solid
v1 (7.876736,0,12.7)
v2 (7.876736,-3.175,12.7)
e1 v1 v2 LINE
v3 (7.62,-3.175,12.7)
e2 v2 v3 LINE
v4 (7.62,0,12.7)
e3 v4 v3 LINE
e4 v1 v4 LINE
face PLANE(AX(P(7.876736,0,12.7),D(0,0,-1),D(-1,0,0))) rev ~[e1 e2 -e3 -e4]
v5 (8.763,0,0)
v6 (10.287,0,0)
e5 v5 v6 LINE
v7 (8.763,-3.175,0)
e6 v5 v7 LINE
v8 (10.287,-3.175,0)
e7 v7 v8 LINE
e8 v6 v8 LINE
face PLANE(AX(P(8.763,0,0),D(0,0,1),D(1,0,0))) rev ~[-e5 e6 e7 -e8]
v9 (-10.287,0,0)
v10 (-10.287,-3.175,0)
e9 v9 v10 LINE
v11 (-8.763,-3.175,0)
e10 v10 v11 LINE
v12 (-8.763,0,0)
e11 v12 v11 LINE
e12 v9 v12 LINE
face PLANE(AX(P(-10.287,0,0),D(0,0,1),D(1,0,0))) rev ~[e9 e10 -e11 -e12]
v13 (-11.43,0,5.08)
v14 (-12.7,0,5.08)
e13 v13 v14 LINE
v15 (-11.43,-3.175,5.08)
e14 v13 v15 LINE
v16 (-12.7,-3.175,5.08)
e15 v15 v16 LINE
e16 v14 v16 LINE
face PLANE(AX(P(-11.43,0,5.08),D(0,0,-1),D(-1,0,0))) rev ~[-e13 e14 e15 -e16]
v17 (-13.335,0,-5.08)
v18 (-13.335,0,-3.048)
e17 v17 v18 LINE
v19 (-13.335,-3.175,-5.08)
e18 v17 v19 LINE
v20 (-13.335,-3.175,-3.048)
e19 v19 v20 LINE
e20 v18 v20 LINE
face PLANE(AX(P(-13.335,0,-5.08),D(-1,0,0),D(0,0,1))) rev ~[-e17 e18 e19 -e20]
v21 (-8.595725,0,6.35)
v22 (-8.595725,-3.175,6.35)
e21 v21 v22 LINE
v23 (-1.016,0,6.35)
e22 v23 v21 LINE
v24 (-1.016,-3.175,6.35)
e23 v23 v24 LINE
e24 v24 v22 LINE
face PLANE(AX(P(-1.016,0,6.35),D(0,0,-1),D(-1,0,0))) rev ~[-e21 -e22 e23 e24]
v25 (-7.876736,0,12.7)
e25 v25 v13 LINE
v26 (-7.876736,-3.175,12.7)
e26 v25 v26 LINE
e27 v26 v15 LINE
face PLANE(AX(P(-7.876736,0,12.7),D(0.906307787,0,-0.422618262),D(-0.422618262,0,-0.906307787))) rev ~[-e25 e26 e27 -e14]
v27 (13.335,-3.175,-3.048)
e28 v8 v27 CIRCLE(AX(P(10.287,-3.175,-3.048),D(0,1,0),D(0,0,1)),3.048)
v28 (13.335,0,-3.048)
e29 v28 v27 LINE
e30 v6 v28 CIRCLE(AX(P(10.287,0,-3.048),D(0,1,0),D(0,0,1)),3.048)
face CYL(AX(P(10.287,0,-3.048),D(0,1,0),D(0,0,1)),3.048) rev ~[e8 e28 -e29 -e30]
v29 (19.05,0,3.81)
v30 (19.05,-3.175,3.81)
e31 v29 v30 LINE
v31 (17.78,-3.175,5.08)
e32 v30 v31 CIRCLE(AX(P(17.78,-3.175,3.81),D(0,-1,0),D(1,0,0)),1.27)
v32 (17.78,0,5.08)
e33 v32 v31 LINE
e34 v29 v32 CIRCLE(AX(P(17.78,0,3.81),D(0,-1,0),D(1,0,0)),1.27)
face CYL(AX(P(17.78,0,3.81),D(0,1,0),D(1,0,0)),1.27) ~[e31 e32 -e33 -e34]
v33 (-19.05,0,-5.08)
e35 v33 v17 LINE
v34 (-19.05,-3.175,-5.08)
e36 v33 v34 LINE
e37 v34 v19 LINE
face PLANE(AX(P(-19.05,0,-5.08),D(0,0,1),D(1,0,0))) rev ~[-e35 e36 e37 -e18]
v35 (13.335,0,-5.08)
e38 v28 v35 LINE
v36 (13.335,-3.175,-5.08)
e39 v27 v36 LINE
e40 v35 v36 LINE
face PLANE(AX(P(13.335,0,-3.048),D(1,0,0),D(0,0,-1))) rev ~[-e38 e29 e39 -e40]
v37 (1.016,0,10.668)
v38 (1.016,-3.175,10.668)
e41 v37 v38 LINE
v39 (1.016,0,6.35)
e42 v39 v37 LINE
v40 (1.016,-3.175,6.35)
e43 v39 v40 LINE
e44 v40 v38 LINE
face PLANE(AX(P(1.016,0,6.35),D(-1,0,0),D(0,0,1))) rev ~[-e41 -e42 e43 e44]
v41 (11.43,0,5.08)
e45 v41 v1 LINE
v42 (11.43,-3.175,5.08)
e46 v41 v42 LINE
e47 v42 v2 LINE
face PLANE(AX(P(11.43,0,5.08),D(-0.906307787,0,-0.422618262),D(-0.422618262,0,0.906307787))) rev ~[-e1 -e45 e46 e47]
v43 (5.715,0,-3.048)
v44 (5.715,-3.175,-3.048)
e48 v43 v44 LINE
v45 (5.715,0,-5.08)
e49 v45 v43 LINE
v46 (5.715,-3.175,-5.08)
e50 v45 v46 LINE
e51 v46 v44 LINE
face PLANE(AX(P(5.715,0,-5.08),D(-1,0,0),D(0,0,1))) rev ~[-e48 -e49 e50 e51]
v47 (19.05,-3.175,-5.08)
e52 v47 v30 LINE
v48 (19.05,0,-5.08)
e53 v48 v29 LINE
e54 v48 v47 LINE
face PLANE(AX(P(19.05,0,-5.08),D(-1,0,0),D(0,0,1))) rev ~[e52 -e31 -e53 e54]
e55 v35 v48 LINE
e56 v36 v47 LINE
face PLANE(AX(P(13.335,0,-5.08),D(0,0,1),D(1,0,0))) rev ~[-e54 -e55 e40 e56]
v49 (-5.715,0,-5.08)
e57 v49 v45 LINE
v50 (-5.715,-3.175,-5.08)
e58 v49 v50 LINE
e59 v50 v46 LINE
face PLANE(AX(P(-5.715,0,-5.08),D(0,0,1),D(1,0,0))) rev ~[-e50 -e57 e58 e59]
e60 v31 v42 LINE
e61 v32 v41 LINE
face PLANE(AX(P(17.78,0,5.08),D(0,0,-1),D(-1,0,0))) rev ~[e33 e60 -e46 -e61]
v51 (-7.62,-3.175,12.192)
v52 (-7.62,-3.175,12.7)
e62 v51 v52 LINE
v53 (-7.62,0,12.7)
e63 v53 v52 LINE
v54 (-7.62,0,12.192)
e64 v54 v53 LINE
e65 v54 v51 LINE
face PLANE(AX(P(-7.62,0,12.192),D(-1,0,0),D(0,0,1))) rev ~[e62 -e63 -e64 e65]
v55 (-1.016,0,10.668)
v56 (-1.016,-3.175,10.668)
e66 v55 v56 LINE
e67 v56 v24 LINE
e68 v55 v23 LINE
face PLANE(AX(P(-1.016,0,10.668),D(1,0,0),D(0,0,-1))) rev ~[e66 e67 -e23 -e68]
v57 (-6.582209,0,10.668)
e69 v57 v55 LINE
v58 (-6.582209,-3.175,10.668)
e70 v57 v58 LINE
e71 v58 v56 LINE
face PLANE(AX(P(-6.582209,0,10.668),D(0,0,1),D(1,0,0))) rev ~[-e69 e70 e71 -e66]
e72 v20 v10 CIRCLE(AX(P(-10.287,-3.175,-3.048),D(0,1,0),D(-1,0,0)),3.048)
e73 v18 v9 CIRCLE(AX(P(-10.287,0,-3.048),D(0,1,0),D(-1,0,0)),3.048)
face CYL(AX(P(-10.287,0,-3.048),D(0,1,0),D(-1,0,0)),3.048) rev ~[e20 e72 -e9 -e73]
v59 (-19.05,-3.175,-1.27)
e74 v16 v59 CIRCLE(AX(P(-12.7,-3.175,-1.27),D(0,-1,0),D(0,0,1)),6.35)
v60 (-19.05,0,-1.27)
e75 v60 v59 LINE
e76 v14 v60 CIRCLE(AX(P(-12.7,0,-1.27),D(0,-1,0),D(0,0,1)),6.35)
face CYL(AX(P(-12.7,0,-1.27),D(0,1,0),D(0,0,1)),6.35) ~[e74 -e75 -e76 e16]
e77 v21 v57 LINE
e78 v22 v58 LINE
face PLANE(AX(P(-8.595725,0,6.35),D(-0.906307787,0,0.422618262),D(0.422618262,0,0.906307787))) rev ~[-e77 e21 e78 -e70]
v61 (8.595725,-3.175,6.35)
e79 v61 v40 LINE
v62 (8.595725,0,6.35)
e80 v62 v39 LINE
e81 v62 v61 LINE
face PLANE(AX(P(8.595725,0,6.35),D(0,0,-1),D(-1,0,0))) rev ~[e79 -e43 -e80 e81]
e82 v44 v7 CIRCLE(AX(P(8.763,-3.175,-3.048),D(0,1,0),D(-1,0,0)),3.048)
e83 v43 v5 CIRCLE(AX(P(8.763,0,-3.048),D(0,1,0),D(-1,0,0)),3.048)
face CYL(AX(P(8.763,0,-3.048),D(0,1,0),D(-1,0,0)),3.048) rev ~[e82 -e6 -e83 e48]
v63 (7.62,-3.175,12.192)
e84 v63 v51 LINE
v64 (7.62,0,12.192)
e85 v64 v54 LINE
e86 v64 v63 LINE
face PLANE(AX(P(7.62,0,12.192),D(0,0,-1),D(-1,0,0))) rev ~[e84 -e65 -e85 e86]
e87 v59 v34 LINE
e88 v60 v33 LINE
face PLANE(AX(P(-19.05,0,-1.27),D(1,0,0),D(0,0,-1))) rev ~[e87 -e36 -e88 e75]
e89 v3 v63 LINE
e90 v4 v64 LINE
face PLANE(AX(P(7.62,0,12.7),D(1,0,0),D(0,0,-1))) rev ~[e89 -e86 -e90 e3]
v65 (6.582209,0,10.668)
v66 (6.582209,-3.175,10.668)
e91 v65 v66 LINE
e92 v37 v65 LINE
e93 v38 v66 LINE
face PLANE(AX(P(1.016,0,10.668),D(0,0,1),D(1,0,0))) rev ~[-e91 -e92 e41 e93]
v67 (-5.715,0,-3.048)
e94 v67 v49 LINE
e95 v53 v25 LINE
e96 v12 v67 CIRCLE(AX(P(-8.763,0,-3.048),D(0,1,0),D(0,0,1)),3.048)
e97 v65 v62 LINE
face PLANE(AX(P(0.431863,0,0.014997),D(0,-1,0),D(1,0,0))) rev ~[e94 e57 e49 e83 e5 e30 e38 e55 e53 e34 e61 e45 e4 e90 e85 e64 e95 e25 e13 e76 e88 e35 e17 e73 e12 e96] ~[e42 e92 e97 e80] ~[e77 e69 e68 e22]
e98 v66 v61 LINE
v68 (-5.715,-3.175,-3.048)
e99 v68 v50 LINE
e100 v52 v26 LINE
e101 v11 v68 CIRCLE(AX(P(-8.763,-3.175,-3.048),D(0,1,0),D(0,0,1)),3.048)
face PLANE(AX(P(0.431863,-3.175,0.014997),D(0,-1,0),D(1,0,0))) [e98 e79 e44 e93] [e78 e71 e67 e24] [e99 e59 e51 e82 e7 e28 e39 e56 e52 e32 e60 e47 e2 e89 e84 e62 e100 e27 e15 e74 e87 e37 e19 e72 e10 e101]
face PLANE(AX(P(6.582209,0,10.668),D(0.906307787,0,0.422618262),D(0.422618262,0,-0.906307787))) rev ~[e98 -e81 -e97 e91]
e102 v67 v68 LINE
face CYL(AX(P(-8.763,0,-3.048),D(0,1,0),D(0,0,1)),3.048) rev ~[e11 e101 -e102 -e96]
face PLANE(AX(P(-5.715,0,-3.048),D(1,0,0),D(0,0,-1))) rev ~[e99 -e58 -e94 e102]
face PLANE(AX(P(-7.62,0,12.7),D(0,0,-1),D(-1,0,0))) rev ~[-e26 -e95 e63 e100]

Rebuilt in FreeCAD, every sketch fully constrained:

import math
import FreeCAD as App
import Part
import Sketcher
Q = App.Units.Quantity


def add_polygon(sketch, points):
    """Adds a closed chain of lines whose ends are joined by coincident constraints."""
    first, n = sketch.GeometryCount, len(points)
    for a, b in zip(points, points[1:] + points[:1]):
        sketch.addGeometry(Part.LineSegment(App.Vector(*a, 0), App.Vector(*b, 0)), False)
    for i in range(n):
        sketch.addConstraint(Sketcher.Constraint("Coincident", first + i, 2, first + (i + 1) % n, 1))

doc = App.newDocument("Part")
body = doc.addObject("PartDesign::Body", "Body")

sketch1 = body.newObject("Sketcher::SketchObject", "Sketch")
sketch1.AttachmentSupport = (doc.getObject("XZ_Plane"), [""])
sketch1.MapMode = "FlatFace"
sketch1.addGeometry(Part.ArcOfCircle(Part.Circle(App.Vector(17.78, 3.81, 0), App.Vector(0, 0, 1), 1.27), math.radians(0), math.radians(90)), False)
sketch1.addGeometry(Part.LineSegment(App.Vector(17.78, 5.08, 0), App.Vector(11.43, 5.08, 0)), False)
sketch1.addGeometry(Part.LineSegment(App.Vector(11.43, 5.08, 0), App.Vector(7.88, 12.7, 0)), False)
sketch1.addGeometry(Part.LineSegment(App.Vector(7.88, 12.7, 0), App.Vector(7.62, 12.7, 0)), False)
sketch1.addGeometry(Part.LineSegment(App.Vector(7.62, 12.7, 0), App.Vector(7.62, 12.19, 0)), False)
sketch1.addGeometry(Part.LineSegment(App.Vector(7.62, 12.19, 0), App.Vector(-7.62, 12.19, 0)), False)
sketch1.addGeometry(Part.LineSegment(App.Vector(-7.62, 12.19, 0), App.Vector(-7.62, 12.7, 0)), False)
sketch1.addGeometry(Part.LineSegment(App.Vector(-7.62, 12.7, 0), App.Vector(-7.88, 12.7, 0)), False)
sketch1.addGeometry(Part.LineSegment(App.Vector(-7.88, 12.7, 0), App.Vector(-11.43, 5.08, 0)), False)
sketch1.addGeometry(Part.LineSegment(App.Vector(-11.43, 5.08, 0), App.Vector(-12.7, 5.08, 0)), False)
sketch1.addGeometry(Part.ArcOfCircle(Part.Circle(App.Vector(-12.7, -1.27, 0), App.Vector(0, 0, 1), 6.35), math.radians(90), math.radians(180)), False)
sketch1.addGeometry(Part.LineSegment(App.Vector(-19.05, -1.27, 0), App.Vector(-19.05, -5.08, 0)), False)
sketch1.addGeometry(Part.LineSegment(App.Vector(-19.05, -5.08, 0), App.Vector(-13.34, -5.08, 0)), False)
sketch1.addGeometry(Part.LineSegment(App.Vector(-13.34, -5.08, 0), App.Vector(-13.34, -3.05, 0)), False)
sketch1.addGeometry(Part.ArcOfCircle(Part.Circle(App.Vector(-10.29, -3.05, 0), App.Vector(0, 0, 1), 3.05), math.radians(90), math.radians(180)), False)
sketch1.addGeometry(Part.LineSegment(App.Vector(-10.29, 0, 0), App.Vector(-8.76, 0, 0)), False)
sketch1.addGeometry(Part.ArcOfCircle(Part.Circle(App.Vector(-8.76, -3.05, 0), App.Vector(0, 0, 1), 3.05), math.radians(0), math.radians(90)), False)
sketch1.addGeometry(Part.LineSegment(App.Vector(-5.71, -3.05, 0), App.Vector(-5.71, -5.08, 0)), False)
sketch1.addGeometry(Part.LineSegment(App.Vector(-5.71, -5.08, 0), App.Vector(5.71, -5.08, 0)), False)
sketch1.addGeometry(Part.LineSegment(App.Vector(5.71, -5.08, 0), App.Vector(5.71, -3.05, 0)), False)
sketch1.addGeometry(Part.ArcOfCircle(Part.Circle(App.Vector(8.76, -3.05, 0), App.Vector(0, 0, 1), 3.05), math.radians(90), math.radians(180)), False)
sketch1.addGeometry(Part.LineSegment(App.Vector(8.76, 0, 0), App.Vector(10.29, 0, 0)), False)
sketch1.addGeometry(Part.ArcOfCircle(Part.Circle(App.Vector(10.29, -3.05, 0), App.Vector(0, 0, 1), 3.05), math.radians(0), math.radians(90)), False)
sketch1.addGeometry(Part.LineSegment(App.Vector(13.34, -3.05, 0), App.Vector(13.34, -5.08, 0)), False)
sketch1.addGeometry(Part.LineSegment(App.Vector(13.34, -5.08, 0), App.Vector(19.05, -5.08, 0)), False)
sketch1.addGeometry(Part.LineSegment(App.Vector(19.05, -5.08, 0), App.Vector(19.05, 3.81, 0)), False)
add_polygon(sketch1, [(-1.02, 10.67), (-1.02, 6.35), (-8.6, 6.35), (-6.58, 10.67)])
add_polygon(sketch1, [(6.58, 10.67), (8.6, 6.35), (1.02, 6.35), (1.02, 10.67)])
sketch1.addConstraint([
    Sketcher.Constraint("Tangent", 0, 2, 1, 1),
    Sketcher.Constraint("Coincident", 1, 2, 2, 1),
    Sketcher.Constraint("Coincident", 2, 2, 3, 1),
    Sketcher.Constraint("Coincident", 3, 2, 4, 1),
    Sketcher.Constraint("Coincident", 4, 2, 5, 1),
    Sketcher.Constraint("Coincident", 5, 2, 6, 1),
    Sketcher.Constraint("Coincident", 6, 2, 7, 1),
    Sketcher.Constraint("Coincident", 7, 2, 8, 1),
    Sketcher.Constraint("Coincident", 8, 2, 9, 1),
    Sketcher.Constraint("Tangent", 9, 2, 10, 1),
    Sketcher.Constraint("Tangent", 10, 2, 11, 1),
    Sketcher.Constraint("Coincident", 11, 2, 12, 1),
    Sketcher.Constraint("Coincident", 12, 2, 13, 1),
    Sketcher.Constraint("Tangent", 13, 2, 14, 2),
    Sketcher.Constraint("Tangent", 14, 1, 15, 1),
    Sketcher.Constraint("Tangent", 15, 2, 16, 2),
    Sketcher.Constraint("Tangent", 16, 1, 17, 1),
    Sketcher.Constraint("Coincident", 17, 2, 18, 1),
    Sketcher.Constraint("Coincident", 18, 2, 19, 1),
    Sketcher.Constraint("Tangent", 19, 2, 20, 2),
    Sketcher.Constraint("Tangent", 20, 1, 21, 1),
    Sketcher.Constraint("Tangent", 21, 2, 22, 2),
    Sketcher.Constraint("Tangent", 22, 1, 23, 1),
    Sketcher.Constraint("Coincident", 23, 2, 24, 1),
    Sketcher.Constraint("Coincident", 24, 2, 25, 1),
    Sketcher.Constraint("Tangent", 25, 2, 0, 1),
    Sketcher.Constraint("Horizontal", 1),
    Sketcher.Constraint("Horizontal", 3),
    Sketcher.Constraint("Vertical", 4),
    Sketcher.Constraint("Horizontal", 5),
    Sketcher.Constraint("Vertical", 6),
    Sketcher.Constraint("Horizontal", 7),
    Sketcher.Constraint("Horizontal", 9),
    Sketcher.Constraint("Vertical", 11),
    Sketcher.Constraint("Horizontal", 12),
    Sketcher.Constraint("Vertical", 13),
    Sketcher.Constraint("Horizontal", 15),
    Sketcher.Constraint("Vertical", 17),
    Sketcher.Constraint("Horizontal", 18),
    Sketcher.Constraint("Vertical", 19),
    Sketcher.Constraint("Horizontal", 21),
    Sketcher.Constraint("Vertical", 23),
    Sketcher.Constraint("Horizontal", 24),
    Sketcher.Constraint("Vertical", 25),
    Sketcher.Constraint("Vertical", 26),
    Sketcher.Constraint("Horizontal", 27),
    Sketcher.Constraint("Horizontal", 29),
    Sketcher.Constraint("Horizontal", 31),
    Sketcher.Constraint("Vertical", 32),
    Sketcher.Constraint("Horizontal", 33),
    Sketcher.Constraint("Equal", 14, 16),
    Sketcher.Constraint("Equal", 16, 20),
    Sketcher.Constraint("Equal", 20, 22),
    Sketcher.Constraint("Symmetric", 15, 2, 20, 1, -1, 1),
    Sketcher.Constraint("Symmetric", 14, 3, 22, 3, -2),
    Sketcher.Constraint("Symmetric", 3, 2, 6, 2, -2),
    Sketcher.Constraint("Symmetric", 1, 2, 8, 2, -2),
    Sketcher.Constraint("Symmetric", 11, 2, 24, 2, -2),
    Sketcher.Constraint("Symmetric", 27, 2, 30, 2, -2),
    Sketcher.Constraint("Symmetric", 29, 2, 32, 2, -2),
    Sketcher.Constraint("Parallel", 8, 28),
    Sketcher.Constraint("Parallel", 2, 30),
    Sketcher.Constraint("Horizontal", 12, 2, 17, 2),
    Sketcher.Constraint("Equal", 3, 7),
    Sketcher.Constraint("Radius", 0, Q("0.05 in")),
    Sketcher.Constraint("Radius", 10, Q("0.25 in")),
    Sketcher.Constraint("Radius", 14, Q("0.12 in")),
    Sketcher.Constraint("DistanceX", 5, 2, 5, 1, Q("0.6 in")),
    Sketcher.Constraint("Angle", 2, Q("115 deg")),
    Sketcher.Constraint("DistanceX", 1, 2, 1, 1, Q("0.25 in")),
    Sketcher.Constraint("DistanceX", 15, 1, 15, 2, Q("0.06 in")),
    Sketcher.Constraint("DistanceX", 18, 1, 18, 2, Q("0.45 in")),
    Sketcher.Constraint("DistanceY", 4, 2, 4, 1, Q("0.02 in")),
    Sketcher.Constraint("DistanceY", 11, 2, 11, 1, Q("0.15 in")),
    Sketcher.Constraint("DistanceY", 13, 1, 13, 2, Q("0.08 in")),
    Sketcher.Constraint("DistanceY", 26, 2, 26, 1, Q("0.17 in")),
    Sketcher.Constraint("DistanceX", -1, 1, 0, 3, Q("0.7 in")),
    Sketcher.Constraint("DistanceY", -1, 1, 2, 2, Q("0.5 in")),
    Sketcher.Constraint("DistanceX", 26, 2, -1, 1, Q("0.04 in")),
    Sketcher.Constraint("DistanceY", -1, 1, 26, 2, Q("0.25 in")),
    Sketcher.Constraint("DistanceX", 29, 1, 29, 2, Q("5.566209 mm")),
])
pad1 = body.newObject("PartDesign::Pad", "Pad")
pad1.Profile = sketch1
pad1.Length = Q("0.125 in")

doc.recompute()
